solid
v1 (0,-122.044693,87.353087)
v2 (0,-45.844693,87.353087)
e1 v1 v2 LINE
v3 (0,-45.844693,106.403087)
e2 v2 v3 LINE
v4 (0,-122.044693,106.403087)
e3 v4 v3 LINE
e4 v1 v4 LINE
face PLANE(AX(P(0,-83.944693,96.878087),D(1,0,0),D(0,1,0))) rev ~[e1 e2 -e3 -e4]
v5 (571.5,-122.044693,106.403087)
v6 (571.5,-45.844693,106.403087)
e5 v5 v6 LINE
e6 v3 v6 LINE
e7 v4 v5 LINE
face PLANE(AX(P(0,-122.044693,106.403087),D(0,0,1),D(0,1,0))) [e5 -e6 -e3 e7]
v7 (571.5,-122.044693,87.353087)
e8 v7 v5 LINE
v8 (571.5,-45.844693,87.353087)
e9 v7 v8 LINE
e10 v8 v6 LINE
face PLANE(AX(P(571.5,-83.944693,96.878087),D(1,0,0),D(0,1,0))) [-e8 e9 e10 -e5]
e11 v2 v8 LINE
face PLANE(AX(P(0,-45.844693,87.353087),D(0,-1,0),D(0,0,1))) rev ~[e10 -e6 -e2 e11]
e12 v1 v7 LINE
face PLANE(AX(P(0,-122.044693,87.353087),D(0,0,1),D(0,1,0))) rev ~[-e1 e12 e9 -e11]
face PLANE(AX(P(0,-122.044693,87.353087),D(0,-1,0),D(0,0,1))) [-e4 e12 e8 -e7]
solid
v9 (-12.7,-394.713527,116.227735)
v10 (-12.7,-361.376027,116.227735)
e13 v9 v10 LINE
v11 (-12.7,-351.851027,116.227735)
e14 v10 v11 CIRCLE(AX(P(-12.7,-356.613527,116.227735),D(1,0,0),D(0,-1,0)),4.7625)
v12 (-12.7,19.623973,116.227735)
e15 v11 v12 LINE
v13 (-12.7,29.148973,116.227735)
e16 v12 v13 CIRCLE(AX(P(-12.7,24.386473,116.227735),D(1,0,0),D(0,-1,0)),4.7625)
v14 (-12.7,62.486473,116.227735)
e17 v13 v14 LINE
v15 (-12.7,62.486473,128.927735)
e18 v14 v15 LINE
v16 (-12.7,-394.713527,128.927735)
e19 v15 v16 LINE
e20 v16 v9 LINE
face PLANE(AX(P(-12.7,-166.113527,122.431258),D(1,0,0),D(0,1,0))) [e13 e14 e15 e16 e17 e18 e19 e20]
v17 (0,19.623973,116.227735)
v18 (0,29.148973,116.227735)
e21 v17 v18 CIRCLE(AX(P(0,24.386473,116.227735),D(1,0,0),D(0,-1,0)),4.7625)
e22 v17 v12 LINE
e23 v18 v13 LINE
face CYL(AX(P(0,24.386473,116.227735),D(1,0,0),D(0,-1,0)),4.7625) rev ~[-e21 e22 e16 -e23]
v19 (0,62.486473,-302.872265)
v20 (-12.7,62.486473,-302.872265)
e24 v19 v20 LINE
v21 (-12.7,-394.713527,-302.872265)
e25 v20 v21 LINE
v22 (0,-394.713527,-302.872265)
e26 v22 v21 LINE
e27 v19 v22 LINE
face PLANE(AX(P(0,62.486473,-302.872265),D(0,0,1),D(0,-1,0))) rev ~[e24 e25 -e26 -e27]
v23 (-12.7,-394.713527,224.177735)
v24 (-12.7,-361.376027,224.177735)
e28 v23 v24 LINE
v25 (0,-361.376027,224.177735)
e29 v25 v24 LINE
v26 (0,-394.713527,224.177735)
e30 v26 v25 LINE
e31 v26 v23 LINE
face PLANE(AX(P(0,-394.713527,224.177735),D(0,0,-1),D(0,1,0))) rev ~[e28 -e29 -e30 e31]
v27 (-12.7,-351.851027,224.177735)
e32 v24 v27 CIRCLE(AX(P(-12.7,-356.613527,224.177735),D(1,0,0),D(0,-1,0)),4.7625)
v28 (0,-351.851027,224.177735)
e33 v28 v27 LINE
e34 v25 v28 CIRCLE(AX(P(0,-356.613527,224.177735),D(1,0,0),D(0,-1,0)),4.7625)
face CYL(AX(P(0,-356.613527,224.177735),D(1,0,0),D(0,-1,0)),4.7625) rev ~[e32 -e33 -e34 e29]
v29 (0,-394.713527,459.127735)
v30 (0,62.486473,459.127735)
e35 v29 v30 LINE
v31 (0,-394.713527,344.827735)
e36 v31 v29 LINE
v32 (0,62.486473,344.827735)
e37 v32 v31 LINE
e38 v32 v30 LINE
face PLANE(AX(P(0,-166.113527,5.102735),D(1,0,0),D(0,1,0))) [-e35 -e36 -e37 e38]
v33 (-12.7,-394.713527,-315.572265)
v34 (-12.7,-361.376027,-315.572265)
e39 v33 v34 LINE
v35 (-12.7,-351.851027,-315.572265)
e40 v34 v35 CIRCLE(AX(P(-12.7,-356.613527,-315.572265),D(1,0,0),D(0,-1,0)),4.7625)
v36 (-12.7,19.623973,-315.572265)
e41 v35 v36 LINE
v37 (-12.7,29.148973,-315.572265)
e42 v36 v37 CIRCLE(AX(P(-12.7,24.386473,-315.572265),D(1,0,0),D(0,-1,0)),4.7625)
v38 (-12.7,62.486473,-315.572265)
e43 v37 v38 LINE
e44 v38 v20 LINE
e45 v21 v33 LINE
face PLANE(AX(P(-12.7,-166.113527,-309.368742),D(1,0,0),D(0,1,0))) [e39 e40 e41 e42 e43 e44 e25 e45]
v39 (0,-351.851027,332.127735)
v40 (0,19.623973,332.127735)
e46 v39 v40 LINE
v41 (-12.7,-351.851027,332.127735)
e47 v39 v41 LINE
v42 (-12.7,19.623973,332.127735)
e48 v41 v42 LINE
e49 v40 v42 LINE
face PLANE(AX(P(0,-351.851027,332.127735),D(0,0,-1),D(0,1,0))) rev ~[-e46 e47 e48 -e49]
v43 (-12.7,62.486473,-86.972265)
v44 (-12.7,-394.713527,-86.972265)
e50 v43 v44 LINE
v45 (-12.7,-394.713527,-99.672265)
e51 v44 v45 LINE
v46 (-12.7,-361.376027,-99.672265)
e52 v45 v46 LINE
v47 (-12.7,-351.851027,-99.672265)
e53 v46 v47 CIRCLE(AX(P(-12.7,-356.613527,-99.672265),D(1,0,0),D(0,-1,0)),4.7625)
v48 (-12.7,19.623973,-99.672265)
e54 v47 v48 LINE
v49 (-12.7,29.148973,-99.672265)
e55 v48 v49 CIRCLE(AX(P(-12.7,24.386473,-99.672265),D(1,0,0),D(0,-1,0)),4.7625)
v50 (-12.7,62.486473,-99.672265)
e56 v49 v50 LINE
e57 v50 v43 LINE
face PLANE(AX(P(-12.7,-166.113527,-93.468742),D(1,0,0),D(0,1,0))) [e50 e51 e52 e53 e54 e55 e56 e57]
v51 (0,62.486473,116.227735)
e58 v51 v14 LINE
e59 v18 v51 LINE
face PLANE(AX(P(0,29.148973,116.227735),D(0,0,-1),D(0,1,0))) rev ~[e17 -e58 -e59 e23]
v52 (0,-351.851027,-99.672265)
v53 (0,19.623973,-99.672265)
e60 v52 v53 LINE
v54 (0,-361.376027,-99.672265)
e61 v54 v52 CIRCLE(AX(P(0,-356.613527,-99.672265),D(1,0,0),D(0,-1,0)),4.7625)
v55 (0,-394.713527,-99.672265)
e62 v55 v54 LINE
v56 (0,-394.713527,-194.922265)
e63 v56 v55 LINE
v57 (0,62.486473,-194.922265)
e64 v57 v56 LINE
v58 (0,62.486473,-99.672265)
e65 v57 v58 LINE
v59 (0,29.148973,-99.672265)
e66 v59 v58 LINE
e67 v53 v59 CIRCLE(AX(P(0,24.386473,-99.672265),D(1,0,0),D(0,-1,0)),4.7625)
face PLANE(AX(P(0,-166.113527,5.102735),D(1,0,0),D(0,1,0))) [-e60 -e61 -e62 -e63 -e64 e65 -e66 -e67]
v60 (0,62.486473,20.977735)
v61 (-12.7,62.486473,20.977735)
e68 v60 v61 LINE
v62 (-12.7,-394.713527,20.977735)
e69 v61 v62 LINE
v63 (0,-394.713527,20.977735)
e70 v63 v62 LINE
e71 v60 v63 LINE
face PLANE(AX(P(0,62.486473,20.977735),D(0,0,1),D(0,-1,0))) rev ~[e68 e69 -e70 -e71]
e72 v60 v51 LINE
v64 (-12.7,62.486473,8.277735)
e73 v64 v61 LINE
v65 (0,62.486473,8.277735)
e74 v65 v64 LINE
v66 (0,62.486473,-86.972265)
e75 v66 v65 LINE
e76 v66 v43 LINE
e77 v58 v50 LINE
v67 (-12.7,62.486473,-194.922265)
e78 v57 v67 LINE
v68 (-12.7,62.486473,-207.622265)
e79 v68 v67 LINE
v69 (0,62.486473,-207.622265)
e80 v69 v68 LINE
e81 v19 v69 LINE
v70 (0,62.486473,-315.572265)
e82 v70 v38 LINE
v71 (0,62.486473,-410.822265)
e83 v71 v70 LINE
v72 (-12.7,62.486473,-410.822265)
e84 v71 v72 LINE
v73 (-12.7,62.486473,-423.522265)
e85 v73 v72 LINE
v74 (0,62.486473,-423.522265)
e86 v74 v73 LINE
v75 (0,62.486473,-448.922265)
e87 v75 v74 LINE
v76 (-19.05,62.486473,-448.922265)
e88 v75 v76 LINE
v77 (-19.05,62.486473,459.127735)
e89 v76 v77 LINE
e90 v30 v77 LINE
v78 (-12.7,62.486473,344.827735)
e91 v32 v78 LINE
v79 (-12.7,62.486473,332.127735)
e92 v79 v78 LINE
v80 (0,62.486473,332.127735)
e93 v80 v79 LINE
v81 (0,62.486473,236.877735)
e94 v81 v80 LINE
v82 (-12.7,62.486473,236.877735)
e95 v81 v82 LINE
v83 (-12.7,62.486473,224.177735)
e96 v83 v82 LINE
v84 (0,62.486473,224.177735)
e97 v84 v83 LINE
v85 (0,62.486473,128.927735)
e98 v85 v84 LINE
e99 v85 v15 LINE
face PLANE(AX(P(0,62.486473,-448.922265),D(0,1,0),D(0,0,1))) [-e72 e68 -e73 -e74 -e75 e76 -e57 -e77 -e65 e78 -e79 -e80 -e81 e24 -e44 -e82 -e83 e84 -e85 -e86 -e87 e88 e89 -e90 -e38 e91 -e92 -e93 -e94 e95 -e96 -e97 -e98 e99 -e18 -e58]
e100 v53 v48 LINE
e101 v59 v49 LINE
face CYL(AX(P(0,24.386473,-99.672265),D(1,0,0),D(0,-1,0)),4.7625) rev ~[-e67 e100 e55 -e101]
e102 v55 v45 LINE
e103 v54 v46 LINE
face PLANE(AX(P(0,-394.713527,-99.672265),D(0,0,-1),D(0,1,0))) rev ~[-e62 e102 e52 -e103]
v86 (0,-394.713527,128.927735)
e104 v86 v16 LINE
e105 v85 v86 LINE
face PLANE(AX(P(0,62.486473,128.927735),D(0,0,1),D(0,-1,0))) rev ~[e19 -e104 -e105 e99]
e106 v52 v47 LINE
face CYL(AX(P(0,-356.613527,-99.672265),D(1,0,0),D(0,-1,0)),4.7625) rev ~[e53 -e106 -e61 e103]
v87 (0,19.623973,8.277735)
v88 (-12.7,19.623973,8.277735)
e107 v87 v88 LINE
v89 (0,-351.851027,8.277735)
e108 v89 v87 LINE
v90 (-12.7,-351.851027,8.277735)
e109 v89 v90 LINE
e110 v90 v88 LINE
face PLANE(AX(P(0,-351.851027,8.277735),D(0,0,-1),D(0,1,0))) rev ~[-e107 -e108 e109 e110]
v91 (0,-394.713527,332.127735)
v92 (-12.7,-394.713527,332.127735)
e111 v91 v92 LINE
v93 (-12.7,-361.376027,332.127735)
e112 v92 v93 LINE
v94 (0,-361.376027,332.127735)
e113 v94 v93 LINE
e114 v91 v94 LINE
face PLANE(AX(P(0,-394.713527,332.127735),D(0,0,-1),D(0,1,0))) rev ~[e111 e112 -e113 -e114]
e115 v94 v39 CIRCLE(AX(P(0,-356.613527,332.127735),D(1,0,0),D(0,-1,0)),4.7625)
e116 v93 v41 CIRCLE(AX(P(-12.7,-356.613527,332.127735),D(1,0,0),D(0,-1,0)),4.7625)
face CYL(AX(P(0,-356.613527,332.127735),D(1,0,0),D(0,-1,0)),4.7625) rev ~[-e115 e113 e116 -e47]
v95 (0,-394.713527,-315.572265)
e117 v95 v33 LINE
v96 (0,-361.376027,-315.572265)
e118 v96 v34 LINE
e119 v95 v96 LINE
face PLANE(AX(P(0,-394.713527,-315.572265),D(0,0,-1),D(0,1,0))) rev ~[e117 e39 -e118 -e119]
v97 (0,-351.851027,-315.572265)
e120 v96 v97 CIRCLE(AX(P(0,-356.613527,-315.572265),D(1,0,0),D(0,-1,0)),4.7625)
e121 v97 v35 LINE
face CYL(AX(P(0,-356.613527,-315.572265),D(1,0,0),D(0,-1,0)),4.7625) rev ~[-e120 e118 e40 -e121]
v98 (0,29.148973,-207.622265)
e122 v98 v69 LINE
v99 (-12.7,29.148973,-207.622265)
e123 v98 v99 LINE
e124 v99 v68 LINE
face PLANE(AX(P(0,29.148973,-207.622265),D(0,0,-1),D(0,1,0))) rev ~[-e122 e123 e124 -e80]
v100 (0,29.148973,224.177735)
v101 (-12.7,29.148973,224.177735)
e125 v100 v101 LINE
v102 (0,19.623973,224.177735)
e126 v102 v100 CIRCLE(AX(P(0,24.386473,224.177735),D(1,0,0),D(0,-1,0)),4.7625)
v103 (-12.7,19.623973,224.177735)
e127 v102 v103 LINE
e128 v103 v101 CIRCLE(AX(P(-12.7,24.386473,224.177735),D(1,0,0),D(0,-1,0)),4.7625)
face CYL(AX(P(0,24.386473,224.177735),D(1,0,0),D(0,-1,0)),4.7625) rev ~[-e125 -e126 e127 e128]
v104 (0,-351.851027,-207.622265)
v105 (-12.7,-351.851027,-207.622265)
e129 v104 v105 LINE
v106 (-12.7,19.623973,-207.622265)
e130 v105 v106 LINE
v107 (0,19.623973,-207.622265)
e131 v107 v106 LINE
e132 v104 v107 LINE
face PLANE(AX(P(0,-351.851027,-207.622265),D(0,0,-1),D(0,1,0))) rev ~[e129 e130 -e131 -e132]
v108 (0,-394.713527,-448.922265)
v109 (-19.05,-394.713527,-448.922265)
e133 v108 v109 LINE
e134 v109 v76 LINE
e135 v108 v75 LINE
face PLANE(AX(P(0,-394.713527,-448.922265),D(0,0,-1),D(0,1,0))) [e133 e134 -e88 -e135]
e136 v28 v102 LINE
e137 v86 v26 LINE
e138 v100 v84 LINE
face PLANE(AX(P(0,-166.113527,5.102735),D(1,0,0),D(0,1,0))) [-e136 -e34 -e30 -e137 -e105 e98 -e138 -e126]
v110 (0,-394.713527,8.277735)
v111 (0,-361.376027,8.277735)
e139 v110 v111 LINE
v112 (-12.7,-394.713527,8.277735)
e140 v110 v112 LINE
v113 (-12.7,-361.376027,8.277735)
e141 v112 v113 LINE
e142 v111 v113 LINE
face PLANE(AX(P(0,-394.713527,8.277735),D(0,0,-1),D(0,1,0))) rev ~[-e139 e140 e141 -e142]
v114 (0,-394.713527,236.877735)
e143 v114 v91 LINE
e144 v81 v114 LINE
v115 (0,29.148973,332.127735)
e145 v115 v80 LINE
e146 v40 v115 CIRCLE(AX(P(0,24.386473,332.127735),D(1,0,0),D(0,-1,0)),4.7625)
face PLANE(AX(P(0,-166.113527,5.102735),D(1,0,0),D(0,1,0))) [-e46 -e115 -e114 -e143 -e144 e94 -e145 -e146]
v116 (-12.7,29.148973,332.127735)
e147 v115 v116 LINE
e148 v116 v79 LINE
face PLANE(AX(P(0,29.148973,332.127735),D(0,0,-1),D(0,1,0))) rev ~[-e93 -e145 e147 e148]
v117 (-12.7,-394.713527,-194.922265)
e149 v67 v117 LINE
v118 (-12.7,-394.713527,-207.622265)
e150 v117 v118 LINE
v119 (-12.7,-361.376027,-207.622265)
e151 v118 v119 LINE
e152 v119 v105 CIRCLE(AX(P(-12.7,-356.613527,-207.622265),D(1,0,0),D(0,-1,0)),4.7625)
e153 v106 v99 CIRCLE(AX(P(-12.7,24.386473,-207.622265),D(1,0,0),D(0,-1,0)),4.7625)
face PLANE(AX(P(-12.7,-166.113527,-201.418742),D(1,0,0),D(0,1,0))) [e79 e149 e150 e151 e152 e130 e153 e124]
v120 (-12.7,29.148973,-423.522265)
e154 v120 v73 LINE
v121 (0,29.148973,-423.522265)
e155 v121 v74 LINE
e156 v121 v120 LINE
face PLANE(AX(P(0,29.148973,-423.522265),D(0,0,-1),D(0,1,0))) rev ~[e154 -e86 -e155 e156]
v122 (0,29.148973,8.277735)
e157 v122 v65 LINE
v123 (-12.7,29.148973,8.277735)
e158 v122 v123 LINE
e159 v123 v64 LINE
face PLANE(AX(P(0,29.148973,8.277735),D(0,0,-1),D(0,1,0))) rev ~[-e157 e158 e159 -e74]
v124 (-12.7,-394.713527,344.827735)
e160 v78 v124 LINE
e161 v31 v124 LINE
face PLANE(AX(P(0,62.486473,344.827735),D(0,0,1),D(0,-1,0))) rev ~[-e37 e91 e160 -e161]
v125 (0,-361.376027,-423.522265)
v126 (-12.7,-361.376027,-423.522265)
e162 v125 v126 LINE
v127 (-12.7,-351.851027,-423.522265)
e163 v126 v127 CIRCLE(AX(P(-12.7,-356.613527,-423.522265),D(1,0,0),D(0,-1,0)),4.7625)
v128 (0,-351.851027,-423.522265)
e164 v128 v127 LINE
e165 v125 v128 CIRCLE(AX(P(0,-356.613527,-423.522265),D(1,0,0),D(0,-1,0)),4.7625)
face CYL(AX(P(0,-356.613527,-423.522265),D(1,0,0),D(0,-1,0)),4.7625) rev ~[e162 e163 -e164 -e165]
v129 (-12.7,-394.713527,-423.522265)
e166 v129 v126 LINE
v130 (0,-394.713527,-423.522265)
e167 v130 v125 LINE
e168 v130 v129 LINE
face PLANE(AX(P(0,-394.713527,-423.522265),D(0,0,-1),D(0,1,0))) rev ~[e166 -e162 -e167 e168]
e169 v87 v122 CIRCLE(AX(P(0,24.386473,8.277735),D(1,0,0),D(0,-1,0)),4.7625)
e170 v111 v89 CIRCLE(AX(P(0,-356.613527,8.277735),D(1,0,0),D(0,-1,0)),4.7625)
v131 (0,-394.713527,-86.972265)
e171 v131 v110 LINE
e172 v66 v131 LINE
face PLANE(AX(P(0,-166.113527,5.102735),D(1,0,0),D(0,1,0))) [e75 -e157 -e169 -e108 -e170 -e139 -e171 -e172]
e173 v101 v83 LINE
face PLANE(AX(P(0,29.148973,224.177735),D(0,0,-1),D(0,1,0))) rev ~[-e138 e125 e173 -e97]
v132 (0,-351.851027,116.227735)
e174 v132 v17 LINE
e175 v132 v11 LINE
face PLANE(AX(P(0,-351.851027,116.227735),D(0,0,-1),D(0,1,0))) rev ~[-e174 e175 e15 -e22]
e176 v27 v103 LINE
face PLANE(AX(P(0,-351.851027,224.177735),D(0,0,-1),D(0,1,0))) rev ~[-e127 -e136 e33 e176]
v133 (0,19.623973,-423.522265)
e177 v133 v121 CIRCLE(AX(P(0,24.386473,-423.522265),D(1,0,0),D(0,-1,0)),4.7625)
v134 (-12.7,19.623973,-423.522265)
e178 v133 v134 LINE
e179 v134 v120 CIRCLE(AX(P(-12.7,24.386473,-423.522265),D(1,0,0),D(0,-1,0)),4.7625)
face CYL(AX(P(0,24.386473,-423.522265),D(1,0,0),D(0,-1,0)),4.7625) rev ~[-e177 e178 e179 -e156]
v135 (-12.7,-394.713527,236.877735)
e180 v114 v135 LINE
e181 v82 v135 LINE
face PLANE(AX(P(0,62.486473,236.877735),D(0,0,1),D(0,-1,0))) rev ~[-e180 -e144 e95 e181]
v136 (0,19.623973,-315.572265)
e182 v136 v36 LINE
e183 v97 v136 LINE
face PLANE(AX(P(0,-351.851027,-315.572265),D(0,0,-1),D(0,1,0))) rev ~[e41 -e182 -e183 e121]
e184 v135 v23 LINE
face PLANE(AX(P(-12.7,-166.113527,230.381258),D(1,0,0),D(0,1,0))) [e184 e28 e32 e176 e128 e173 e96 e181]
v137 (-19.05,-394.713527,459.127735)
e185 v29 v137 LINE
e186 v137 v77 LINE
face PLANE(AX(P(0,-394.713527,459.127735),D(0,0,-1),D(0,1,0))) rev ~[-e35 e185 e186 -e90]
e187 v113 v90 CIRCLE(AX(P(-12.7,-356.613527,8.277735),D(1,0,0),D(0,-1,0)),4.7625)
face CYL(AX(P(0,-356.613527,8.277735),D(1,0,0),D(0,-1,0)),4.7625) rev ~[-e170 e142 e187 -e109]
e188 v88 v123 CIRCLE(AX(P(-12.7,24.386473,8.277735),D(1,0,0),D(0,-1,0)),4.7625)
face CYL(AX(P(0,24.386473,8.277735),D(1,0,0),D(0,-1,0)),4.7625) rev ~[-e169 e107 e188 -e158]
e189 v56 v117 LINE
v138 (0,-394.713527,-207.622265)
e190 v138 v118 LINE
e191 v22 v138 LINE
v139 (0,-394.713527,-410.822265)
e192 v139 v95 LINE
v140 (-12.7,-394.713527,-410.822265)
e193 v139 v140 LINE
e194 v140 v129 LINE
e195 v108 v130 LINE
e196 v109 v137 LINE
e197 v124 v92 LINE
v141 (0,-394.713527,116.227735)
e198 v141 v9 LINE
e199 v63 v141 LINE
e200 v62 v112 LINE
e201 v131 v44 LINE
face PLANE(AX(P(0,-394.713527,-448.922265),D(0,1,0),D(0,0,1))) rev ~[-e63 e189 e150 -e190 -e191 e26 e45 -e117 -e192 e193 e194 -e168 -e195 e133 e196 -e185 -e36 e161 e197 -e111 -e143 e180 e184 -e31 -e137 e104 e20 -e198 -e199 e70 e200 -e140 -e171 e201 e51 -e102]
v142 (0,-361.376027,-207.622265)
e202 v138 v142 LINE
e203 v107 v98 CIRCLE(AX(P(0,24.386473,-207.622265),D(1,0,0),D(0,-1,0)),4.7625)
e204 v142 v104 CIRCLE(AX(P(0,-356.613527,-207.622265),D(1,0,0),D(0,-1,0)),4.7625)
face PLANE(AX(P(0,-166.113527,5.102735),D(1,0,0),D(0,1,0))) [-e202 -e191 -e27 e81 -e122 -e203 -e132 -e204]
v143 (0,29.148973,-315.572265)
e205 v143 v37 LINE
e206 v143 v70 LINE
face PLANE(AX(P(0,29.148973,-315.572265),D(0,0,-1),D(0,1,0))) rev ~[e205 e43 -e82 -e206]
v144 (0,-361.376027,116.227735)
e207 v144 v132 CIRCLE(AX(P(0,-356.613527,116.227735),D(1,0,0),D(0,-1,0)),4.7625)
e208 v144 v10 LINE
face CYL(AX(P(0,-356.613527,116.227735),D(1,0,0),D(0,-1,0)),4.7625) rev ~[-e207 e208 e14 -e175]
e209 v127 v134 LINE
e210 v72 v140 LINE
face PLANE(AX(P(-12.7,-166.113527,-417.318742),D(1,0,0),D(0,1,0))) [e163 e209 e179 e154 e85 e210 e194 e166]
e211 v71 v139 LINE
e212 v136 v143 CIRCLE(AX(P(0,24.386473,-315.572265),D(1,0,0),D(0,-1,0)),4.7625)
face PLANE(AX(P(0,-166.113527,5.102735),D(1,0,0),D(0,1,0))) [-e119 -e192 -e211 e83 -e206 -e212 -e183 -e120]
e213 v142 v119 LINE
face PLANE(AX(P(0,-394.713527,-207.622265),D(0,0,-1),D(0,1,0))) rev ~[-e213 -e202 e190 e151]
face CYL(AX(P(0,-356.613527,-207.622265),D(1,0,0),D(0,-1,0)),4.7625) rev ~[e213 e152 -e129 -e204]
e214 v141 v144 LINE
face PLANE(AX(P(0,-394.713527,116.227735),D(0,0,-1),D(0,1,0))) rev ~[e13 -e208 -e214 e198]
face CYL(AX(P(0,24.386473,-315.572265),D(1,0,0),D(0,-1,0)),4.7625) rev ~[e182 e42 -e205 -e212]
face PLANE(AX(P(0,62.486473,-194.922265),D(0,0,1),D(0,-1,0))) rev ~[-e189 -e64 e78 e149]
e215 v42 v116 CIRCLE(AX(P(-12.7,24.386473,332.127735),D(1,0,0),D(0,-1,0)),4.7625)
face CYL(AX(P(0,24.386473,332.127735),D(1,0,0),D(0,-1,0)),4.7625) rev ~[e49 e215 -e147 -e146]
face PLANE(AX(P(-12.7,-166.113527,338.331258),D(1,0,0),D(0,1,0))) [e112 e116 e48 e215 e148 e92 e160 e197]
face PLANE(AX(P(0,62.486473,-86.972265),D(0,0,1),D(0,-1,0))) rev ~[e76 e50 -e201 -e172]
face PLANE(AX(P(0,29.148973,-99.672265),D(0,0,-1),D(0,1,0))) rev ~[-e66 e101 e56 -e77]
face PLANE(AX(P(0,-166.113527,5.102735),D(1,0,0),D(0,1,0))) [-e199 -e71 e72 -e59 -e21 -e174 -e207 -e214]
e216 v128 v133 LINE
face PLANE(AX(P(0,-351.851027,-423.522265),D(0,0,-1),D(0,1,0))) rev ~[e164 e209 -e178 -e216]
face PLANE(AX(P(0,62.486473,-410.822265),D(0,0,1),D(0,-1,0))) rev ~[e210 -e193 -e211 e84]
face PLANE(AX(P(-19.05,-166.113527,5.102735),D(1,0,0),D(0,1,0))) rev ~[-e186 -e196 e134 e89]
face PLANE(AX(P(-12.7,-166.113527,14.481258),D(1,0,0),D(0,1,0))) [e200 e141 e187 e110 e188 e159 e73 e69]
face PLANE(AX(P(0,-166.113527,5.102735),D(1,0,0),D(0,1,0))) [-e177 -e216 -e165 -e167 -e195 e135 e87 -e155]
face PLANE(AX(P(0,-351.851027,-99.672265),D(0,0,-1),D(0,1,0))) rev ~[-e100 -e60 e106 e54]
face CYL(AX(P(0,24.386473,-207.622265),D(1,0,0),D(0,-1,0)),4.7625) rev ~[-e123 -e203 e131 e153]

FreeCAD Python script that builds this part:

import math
import FreeCAD as App
import Part
import Sketcher
Q = App.Units.Quantity


def add_polygon(sketch, points):
    """Adds a closed chain of lines whose ends are joined by coincident constraints."""
    first, n = sketch.GeometryCount, len(points)
    for a, b in zip(points, points[1:] + points[:1]):
        sketch.addGeometry(Part.LineSegment(App.Vector(*a, 0), App.Vector(*b, 0)), False)
    for i in range(n):
        sketch.addConstraint(Sketcher.Constraint("Coincident", first + i, 2, first + (i + 1) % n, 1))

doc = App.newDocument("Part")
params = doc.addObject("Spreadsheet::Sheet", "Params")
for row, (alias, value) in enumerate([
    ("sketch1_width", "18 in"),
    ("sketch1_height", "35.75 in"),
    ("pad1_length", "0.75 in"),
    ("sketch2_width", "18 in"),
    ("sketch2_height", "0.5 in"),
    ("sketch2_radius", "0.1875 in"),
    ("pocket1_length", "0.5 in"),
    ("sketch3_width", "18 in"),
    ("sketch3_height", "0.5 in"),
    ("sketch3_radius", "0.1875 in"),
    ("sketch3_width2", "1.3125 in"),
    ("pocket2_length", "0.5 in"),
    ("sketch4_width", "3 in"),
    ("sketch4_height", "0.75 in"),
    ("pad2_length", "22.5 in"),
], start=1):
    params.set(f"A{row}", alias)
    params.set(f"B{row}", "=" + value)
    params.setAlias(f"B{row}", alias)

body = doc.addObject("PartDesign::Body", "Body")

sketch1 = body.newObject("Sketcher::SketchObject", "Sketch")
sketch1.AttachmentSupport = (doc.getObject("YZ_Plane"), [""])
sketch1.MapMode = "FlatFace"
add_polygon(sketch1, [(-394.713527, 459.127735), (-394.713527, -448.922265), (62.486473, -448.922265), (62.486473, 459.127735)])
sketch1.addConstraint([
    Sketcher.Constraint("Vertical", 0),
    Sketcher.Constraint("Horizontal", 1),
    Sketcher.Constraint("Vertical", 2),
    Sketcher.Constraint("Horizontal", 3),
    Sketcher.Constraint("DistanceX", 1, 1, 1, 2, Q("18 in")),
    Sketcher.Constraint("DistanceY", 0, 2, 0, 1, Q("35.75 in")),
    Sketcher.Constraint("DistanceX", 0, 2, -1, 1, 394.713527),
    Sketcher.Constraint("DistanceY", 0, 2, -1, 1, 448.922265),
])
sketch1.setExpression("Constraints[8]", "Params.sketch1_width")
sketch1.setExpression("Constraints[9]", "Params.sketch1_height")
pad1 = body.newObject("PartDesign::Pad", "Pad")
pad1.Profile = sketch1
pad1.setExpression("Length", "Params.pad1_length")
pad1.Reversed = True

sketch2 = body.newObject("Sketcher::SketchObject", "Sketch001")
sketch2.AttachmentSupport = (doc.getObject("YZ_Plane"), [""])
sketch2.MapMode = "FlatFace"
sketch2.addGeometry([
    Part.LineSegment(App.Vector(-394.713527, -410.822265, 0), App.Vector(-394.713527, -423.522265, 0)),
    Part.LineSegment(App.Vector(-394.713527, -423.522265, 0), App.Vector(-361.376027, -423.522265, 0)),
    Part.ArcOfCircle(Part.Circle(App.Vector(-356.613527, -423.522265, 0), App.Vector(0, 0, 1), 4.7625), math.radians(180), math.radians(360)),
    Part.LineSegment(App.Vector(-351.851027, -423.522265, 0), App.Vector(19.623973, -423.522265, 0)),
    Part.ArcOfCircle(Part.Circle(App.Vector(24.386473, -423.522265, 0), App.Vector(0, 0, 1), 4.7625), math.radians(180), math.radians(360)),
    Part.LineSegment(App.Vector(29.148973, -423.522265, 0), App.Vector(62.486473, -423.522265, 0)),
    Part.LineSegment(App.Vector(62.486473, -423.522265, 0), App.Vector(62.486473, -410.822265, 0)),
    Part.LineSegment(App.Vector(62.486473, -410.822265, 0), App.Vector(-394.713527, -410.822265, 0)),
], False)
sketch2.addConstraint([
    Sketcher.Constraint("Coincident", 0, 2, 1, 1),
    Sketcher.Constraint("Coincident", 1, 2, 2, 1),
    Sketcher.Constraint("Coincident", 2, 2, 3, 1),
    Sketcher.Constraint("Coincident", 3, 2, 4, 1),
    Sketcher.Constraint("Coincident", 4, 2, 5, 1),
    Sketcher.Constraint("Coincident", 5, 2, 6, 1),
    Sketcher.Constraint("Coincident", 6, 2, 7, 1),
    Sketcher.Constraint("Coincident", 7, 2, 0, 1),
    Sketcher.Constraint("Vertical", 0),
    Sketcher.Constraint("Horizontal", 1),
    Sketcher.Constraint("Horizontal", 3),
    Sketcher.Constraint("Horizontal", 5),
    Sketcher.Constraint("Vertical", 6),
    Sketcher.Constraint("Horizontal", 7),
    Sketcher.Constraint("Equal", 2, 4),
    Sketcher.Constraint("Horizontal", 2, 3, 4, 3),
    Sketcher.Constraint("Horizontal", 4, 3, 0, 2),
    Sketcher.Constraint("Horizontal", 1, 2, 2, 2),
    Sketcher.Constraint("Horizontal", 3, 2, 4, 2),
    Sketcher.Constraint("Equal", 1, 5),
    Sketcher.Constraint("DistanceX", 7, 2, 7, 1, Q("18 in")),
    Sketcher.Constraint("DistanceY", 0, 2, 0, 1, Q("0.5 in")),
    Sketcher.Constraint("Radius", 2, Q("0.1875 in")),
    Sketcher.Constraint("DistanceX", 2, 3, 4, 3, Q("15 in")),
    Sketcher.Constraint("DistanceX", 2, 3, -1, 1, 356.613527),
    Sketcher.Constraint("DistanceY", 2, 3, -1, 1, 423.522265),
])
sketch2.setExpression("Constraints[20]", "Params.sketch2_width")
sketch2.setExpression("Constraints[21]", "Params.sketch2_height")
sketch2.setExpression("Constraints[22]", "Params.sketch2_radius")
pocket1 = body.newObject("PartDesign::Pocket", "Pocket")
pocket1.Profile = sketch2
pocket1.setExpression("Length", "Params.pocket1_length")

sketch3 = body.newObject("Sketcher::SketchObject", "Sketch002")
sketch3.AttachmentSupport = (doc.getObject("YZ_Plane"), [""])
sketch3.MapMode = "FlatFace"
sketch3.addGeometry([
    Part.LineSegment(App.Vector(-394.713527, -302.872265, 0), App.Vector(-394.713527, -315.572265, 0)),
    Part.LineSegment(App.Vector(-394.713527, -315.572265, 0), App.Vector(-361.376027, -315.572265, 0)),
    Part.ArcOfCircle(Part.Circle(App.Vector(-356.613527, -315.572265, 0), App.Vector(0, 0, 1), 4.7625), math.radians(180), math.radians(360)),
    Part.LineSegment(App.Vector(-351.851027, -315.572265, 0), App.Vector(19.623973, -315.572265, 0)),
    Part.ArcOfCircle(Part.Circle(App.Vector(24.386473, -315.572265, 0), App.Vector(0, 0, 1), 4.7625), math.radians(180), math.radians(360)),
    Part.LineSegment(App.Vector(29.148973, -315.572265, 0), App.Vector(62.486473, -315.572265, 0)),
    Part.LineSegment(App.Vector(62.486473, -315.572265, 0), App.Vector(62.486473, -302.872265, 0)),
    Part.LineSegment(App.Vector(62.486473, -302.872265, 0), App.Vector(-394.713527, -302.872265, 0)),
    Part.LineSegment(App.Vector(-394.713527, -194.922265, 0), App.Vector(-394.713527, -207.622265, 0)),
    Part.LineSegment(App.Vector(-394.713527, -207.622265, 0), App.Vector(-361.376027, -207.622265, 0)),
    Part.ArcOfCircle(Part.Circle(App.Vector(-356.613527, -207.622265, 0), App.Vector(0, 0, 1), 4.7625), math.radians(180), math.radians(360)),
    Part.LineSegment(App.Vector(-351.851027, -207.622265, 0), App.Vector(19.623973, -207.622265, 0)),
    Part.ArcOfCircle(Part.Circle(App.Vector(24.386473, -207.622265, 0), App.Vector(0, 0, 1), 4.7625), math.radians(180), math.radians(360)),
    Part.LineSegment(App.Vector(29.148973, -207.622265, 0), App.Vector(62.486473, -207.622265, 0)),
    Part.LineSegment(App.Vector(62.486473, -207.622265, 0), App.Vector(62.486473, -194.922265, 0)),
    Part.LineSegment(App.Vector(62.486473, -194.922265, 0), App.Vector(-394.713527, -194.922265, 0)),
    Part.LineSegment(App.Vector(-394.713527, -86.972265, 0), App.Vector(-394.713527, -99.672265, 0)),
    Part.LineSegment(App.Vector(-394.713527, -99.672265, 0), App.Vector(-361.376027, -99.672265, 0)),
    Part.ArcOfCircle(Part.Circle(App.Vector(-356.613527, -99.672265, 0), App.Vector(0, 0, 1), 4.7625), math.radians(180), math.radians(360)),
    Part.LineSegment(App.Vector(-351.851027, -99.672265, 0), App.Vector(19.623973, -99.672265, 0)),
    Part.ArcOfCircle(Part.Circle(App.Vector(24.386473, -99.672265, 0), App.Vector(0, 0, 1), 4.7625), math.radians(180), math.radians(360)),
    Part.LineSegment(App.Vector(29.148973, -99.672265, 0), App.Vector(62.486473, -99.672265, 0)),
    Part.LineSegment(App.Vector(62.486473, -99.672265, 0), App.Vector(62.486473, -86.972265, 0)),
    Part.LineSegment(App.Vector(62.486473, -86.972265, 0), App.Vector(-394.713527, -86.972265, 0)),
    Part.LineSegment(App.Vector(-394.713527, 20.977735, 0), App.Vector(-394.713527, 8.277735, 0)),
    Part.LineSegment(App.Vector(-394.713527, 8.277735, 0), App.Vector(-361.376027, 8.277735, 0)),
    Part.ArcOfCircle(Part.Circle(App.Vector(-356.613527, 8.277735, 0), App.Vector(0, 0, 1), 4.7625), math.radians(180), math.radians(360)),
    Part.LineSegment(App.Vector(-351.851027, 8.277735, 0), App.Vector(19.623973, 8.277735, 0)),
    Part.ArcOfCircle(Part.Circle(App.Vector(24.386473, 8.277735, 0), App.Vector(0, 0, 1), 4.7625), math.radians(180), math.radians(360)),
    Part.LineSegment(App.Vector(29.148973, 8.277735, 0), App.Vector(62.486473, 8.277735, 0)),
    Part.LineSegment(App.Vector(62.486473, 8.277735, 0), App.Vector(62.486473, 20.977735, 0)),
    Part.LineSegment(App.Vector(62.486473, 20.977735, 0), App.Vector(-394.713527, 20.977735, 0)),
    Part.LineSegment(App.Vector(-394.713527, 128.927735, 0), App.Vector(-394.713527, 116.227735, 0)),
    Part.LineSegment(App.Vector(-394.713527, 116.227735, 0), App.Vector(-361.376027, 116.227735, 0)),
    Part.ArcOfCircle(Part.Circle(App.Vector(-356.613527, 116.227735, 0), App.Vector(0, 0, 1), 4.7625), math.radians(180), math.radians(360)),
    Part.LineSegment(App.Vector(-351.851027, 116.227735, 0), App.Vector(19.623973, 116.227735, 0)),
    Part.ArcOfCircle(Part.Circle(App.Vector(24.386473, 116.227735, 0), App.Vector(0, 0, 1), 4.7625), math.radians(180), math.radians(360)),
    Part.LineSegment(App.Vector(29.148973, 116.227735, 0), App.Vector(62.486473, 116.227735, 0)),
    Part.LineSegment(App.Vector(62.486473, 116.227735, 0), App.Vector(62.486473, 128.927735, 0)),
    Part.LineSegment(App.Vector(62.486473, 128.927735, 0), App.Vector(-394.713527, 128.927735, 0)),
    Part.LineSegment(App.Vector(-394.713527, 236.877735, 0), App.Vector(-394.713527, 224.177735, 0)),
    Part.LineSegment(App.Vector(-394.713527, 224.177735, 0), App.Vector(-361.376027, 224.177735, 0)),
    Part.ArcOfCircle(Part.Circle(App.Vector(-356.613527, 224.177735, 0), App.Vector(0, 0, 1), 4.7625), math.radians(180), math.radians(360)),
    Part.LineSegment(App.Vector(-351.851027, 224.177735, 0), App.Vector(19.623973, 224.177735, 0)),
    Part.ArcOfCircle(Part.Circle(App.Vector(24.386473, 224.177735, 0), App.Vector(0, 0, 1), 4.7625), math.radians(180), math.radians(360)),
    Part.LineSegment(App.Vector(29.148973, 224.177735, 0), App.Vector(62.486473, 224.177735, 0)),
    Part.LineSegment(App.Vector(62.486473, 224.177735, 0), App.Vector(62.486473, 236.877735, 0)),
    Part.LineSegment(App.Vector(62.486473, 236.877735, 0), App.Vector(-394.713527, 236.877735, 0)),
    Part.LineSegment(App.Vector(-394.713527, 344.827735, 0), App.Vector(-394.713527, 332.127735, 0)),
    Part.LineSegment(App.Vector(-394.713527, 332.127735, 0), App.Vector(-361.376027, 332.127735, 0)),
    Part.ArcOfCircle(Part.Circle(App.Vector(-356.613527, 332.127735, 0), App.Vector(0, 0, 1), 4.7625), math.radians(180), math.radians(360)),
    Part.LineSegment(App.Vector(-351.851027, 332.127735, 0), App.Vector(19.623973, 332.127735, 0)),
    Part.ArcOfCircle(Part.Circle(App.Vector(24.386473, 332.127735, 0), App.Vector(0, 0, 1), 4.7625), math.radians(180), math.radians(360)),
    Part.LineSegment(App.Vector(29.148973, 332.127735, 0), App.Vector(62.486473, 332.127735, 0)),
    Part.LineSegment(App.Vector(62.486473, 332.127735, 0), App.Vector(62.486473, 344.827735, 0)),
    Part.LineSegment(App.Vector(62.486473, 344.827735, 0), App.Vector(-394.713527, 344.827735, 0)),
], False)
sketch3.addConstraint([
    Sketcher.Constraint("Coincident", 0, 2, 1, 1),
    Sketcher.Constraint("Coincident", 1, 2, 2, 1),
    Sketcher.Constraint("Coincident", 2, 2, 3, 1),
    Sketcher.Constraint("Coincident", 3, 2, 4, 1),
    Sketcher.Constraint("Coincident", 4, 2, 5, 1),
    Sketcher.Constraint("Coincident", 5, 2, 6, 1),
    Sketcher.Constraint("Coincident", 6, 2, 7, 1),
    Sketcher.Constraint("Coincident", 7, 2, 0, 1),
    Sketcher.Constraint("Coincident", 8, 2, 9, 1),
    Sketcher.Constraint("Coincident", 9, 2, 10, 1),
    Sketcher.Constraint("Coincident", 10, 2, 11, 1),
    Sketcher.Constraint("Coincident", 11, 2, 12, 1),
    Sketcher.Constraint("Coincident", 12, 2, 13, 1),
    Sketcher.Constraint("Coincident", 13, 2, 14, 1),
    Sketcher.Constraint("Coincident", 14, 2, 15, 1),
    Sketcher.Constraint("Coincident", 15, 2, 8, 1),
    Sketcher.Constraint("Coincident", 16, 2, 17, 1),
    Sketcher.Constraint("Coincident", 17, 2, 18, 1),
    Sketcher.Constraint("Coincident", 18, 2, 19, 1),
    Sketcher.Constraint("Coincident", 19, 2, 20, 1),
    Sketcher.Constraint("Coincident", 20, 2, 21, 1),
    Sketcher.Constraint("Coincident", 21, 2, 22, 1),
    Sketcher.Constraint("Coincident", 22, 2, 23, 1),
    Sketcher.Constraint("Coincident", 23, 2, 16, 1),
    Sketcher.Constraint("Coincident", 24, 2, 25, 1),
    Sketcher.Constraint("Coincident", 25, 2, 26, 1),
    Sketcher.Constraint("Coincident", 26, 2, 27, 1),
    Sketcher.Constraint("Coincident", 27, 2, 28, 1),
    Sketcher.Constraint("Coincident", 28, 2, 29, 1),
    Sketcher.Constraint("Coincident", 29, 2, 30, 1),
    Sketcher.Constraint("Coincident", 30, 2, 31, 1),
    Sketcher.Constraint("Coincident", 31, 2, 24, 1),
    Sketcher.Constraint("Coincident", 32, 2, 33, 1),
    Sketcher.Constraint("Coincident", 33, 2, 34, 1),
    Sketcher.Constraint("Coincident", 34, 2, 35, 1),
    Sketcher.Constraint("Coincident", 35, 2, 36, 1),
    Sketcher.Constraint("Coincident", 36, 2, 37, 1),
    Sketcher.Constraint("Coincident", 37, 2, 38, 1),
    Sketcher.Constraint("Coincident", 38, 2, 39, 1),
    Sketcher.Constraint("Coincident", 39, 2, 32, 1),
    Sketcher.Constraint("Coincident", 40, 2, 41, 1),
    Sketcher.Constraint("Coincident", 41, 2, 42, 1),
    Sketcher.Constraint("Coincident", 42, 2, 43, 1),
    Sketcher.Constraint("Coincident", 43, 2, 44, 1),
    Sketcher.Constraint("Coincident", 44, 2, 45, 1),
    Sketcher.Constraint("Coincident", 45, 2, 46, 1),
    Sketcher.Constraint("Coincident", 46, 2, 47, 1),
    Sketcher.Constraint("Coincident", 47, 2, 40, 1),
    Sketcher.Constraint("Coincident", 48, 2, 49, 1),
    Sketcher.Constraint("Coincident", 49, 2, 50, 1),
    Sketcher.Constraint("Coincident", 50, 2, 51, 1),
    Sketcher.Constraint("Coincident", 51, 2, 52, 1),
    Sketcher.Constraint("Coincident", 52, 2, 53, 1),
    Sketcher.Constraint("Coincident", 53, 2, 54, 1),
    Sketcher.Constraint("Coincident", 54, 2, 55, 1),
    Sketcher.Constraint("Coincident", 55, 2, 48, 1),
    Sketcher.Constraint("Vertical", 0),
    Sketcher.Constraint("Horizontal", 1),
    Sketcher.Constraint("Horizontal", 3),
    Sketcher.Constraint("Horizontal", 5),
    Sketcher.Constraint("Vertical", 6),
    Sketcher.Constraint("Horizontal", 7),
    Sketcher.Constraint("Vertical", 8),
    Sketcher.Constraint("Horizontal", 9),
    Sketcher.Constraint("Horizontal", 11),
    Sketcher.Constraint("Horizontal", 13),
    Sketcher.Constraint("Vertical", 14),
    Sketcher.Constraint("Horizontal", 15),
    Sketcher.Constraint("Vertical", 16),
    Sketcher.Constraint("Horizontal", 17),
    Sketcher.Constraint("Horizontal", 19),
    Sketcher.Constraint("Horizontal", 21),
    Sketcher.Constraint("Vertical", 22),
    Sketcher.Constraint("Horizontal", 23),
    Sketcher.Constraint("Vertical", 24),
    Sketcher.Constraint("Horizontal", 25),
    Sketcher.Constraint("Horizontal", 27),
    Sketcher.Constraint("Horizontal", 29),
    Sketcher.Constraint("Vertical", 30),
    Sketcher.Constraint("Horizontal", 31),
    Sketcher.Constraint("Vertical", 32),
    Sketcher.Constraint("Horizontal", 33),
    Sketcher.Constraint("Horizontal", 35),
    Sketcher.Constraint("Horizontal", 37),
    Sketcher.Constraint("Vertical", 38),
    Sketcher.Constraint("Horizontal", 39),
    Sketcher.Constraint("Vertical", 40),
    Sketcher.Constraint("Horizontal", 41),
    Sketcher.Constraint("Horizontal", 43),
    Sketcher.Constraint("Horizontal", 45),
    Sketcher.Constraint("Vertical", 46),
    Sketcher.Constraint("Horizontal", 47),
    Sketcher.Constraint("Vertical", 48),
    Sketcher.Constraint("Horizontal", 49),
    Sketcher.Constraint("Horizontal", 51),
    Sketcher.Constraint("Horizontal", 53),
    Sketcher.Constraint("Vertical", 54),
    Sketcher.Constraint("Horizontal", 55),
    Sketcher.Constraint("Equal", 2, 4),
    Sketcher.Constraint("Equal", 4, 10),
    Sketcher.Constraint("Equal", 10, 12),
    Sketcher.Constraint("Equal", 12, 18),
    Sketcher.Constraint("Equal", 18, 20),
    Sketcher.Constraint("Equal", 20, 26),
    Sketcher.Constraint("Equal", 26, 28),
    Sketcher.Constraint("Equal", 28, 34),
    Sketcher.Constraint("Equal", 34, 36),
    Sketcher.Constraint("Equal", 36, 42),
    Sketcher.Constraint("Equal", 42, 44),
    Sketcher.Constraint("Equal", 44, 50),
    Sketcher.Constraint("Equal", 50, 52),
    Sketcher.Constraint("Horizontal", 2, 3, 4, 3),
    Sketcher.Constraint("Horizontal", 10, 3, 12, 3),
    Sketcher.Constraint("Horizontal", 18, 3, 20, 3),
    Sketcher.Constraint("Horizontal", 26, 3, 28, 3),
    Sketcher.Constraint("Horizontal", 34, 3, 36, 3),
    Sketcher.Constraint("Horizontal", 42, 3, 44, 3),
    Sketcher.Constraint("Horizontal", 50, 3, 52, 3),
    Sketcher.Constraint("Horizontal", 4, 3, 0, 2),
    Sketcher.Constraint("Horizontal", 1, 2, 2, 2),
    Sketcher.Constraint("Horizontal", 3, 2, 4, 2),
    Sketcher.Constraint("Horizontal", 12, 3, 8, 2),
    Sketcher.Constraint("Horizontal", 9, 2, 10, 2),
    Sketcher.Constraint("Horizontal", 11, 2, 12, 2),
    Sketcher.Constraint("Horizontal", 20, 3, 16, 2),
    Sketcher.Constraint("Horizontal", 17, 2, 18, 2),
    Sketcher.Constraint("Horizontal", 19, 2, 20, 2),
    Sketcher.Constraint("Horizontal", 28, 3, 24, 2),
    Sketcher.Constraint("Horizontal", 25, 2, 26, 2),
    Sketcher.Constraint("Horizontal", 27, 2, 28, 2),
    Sketcher.Constraint("Horizontal", 36, 3, 32, 2),
    Sketcher.Constraint("Horizontal", 33, 2, 34, 2),
    Sketcher.Constraint("Horizontal", 35, 2, 36, 2),
    Sketcher.Constraint("Horizontal", 44, 3, 40, 2),
    Sketcher.Constraint("Horizontal", 41, 2, 42, 2),
    Sketcher.Constraint("Horizontal", 43, 2, 44, 2),
    Sketcher.Constraint("Horizontal", 52, 3, 48, 2),
    Sketcher.Constraint("Horizontal", 49, 2, 50, 2),
    Sketcher.Constraint("Horizontal", 51, 2, 52, 2),
    Sketcher.Constraint("Vertical", 2, 3, 10, 3),
    Sketcher.Constraint("Vertical", 4, 3, 12, 3),
    Sketcher.Constraint("Vertical", 10, 3, 18, 3),
    Sketcher.Constraint("Vertical", 12, 3, 20, 3),
    Sketcher.Constraint("Vertical", 18, 3, 26, 3),
    Sketcher.Constraint("Vertical", 20, 3, 28, 3),
    Sketcher.Constraint("Vertical", 26, 3, 34, 3),
    Sketcher.Constraint("Vertical", 28, 3, 36, 3),
    Sketcher.Constraint("Vertical", 34, 3, 42, 3),
    Sketcher.Constraint("Vertical", 36, 3, 44, 3),
    Sketcher.Constraint("Vertical", 42, 3, 50, 3),
    Sketcher.Constraint("Vertical", 44, 3, 52, 3),
    Sketcher.Constraint("Vertical", 7, 2, 8, 2),
    Sketcher.Constraint("Vertical", 6, 2, 13, 2),
    Sketcher.Constraint("Vertical", 15, 2, 16, 2),
    Sketcher.Constraint("Vertical", 14, 2, 21, 2),
    Sketcher.Constraint("Vertical", 23, 2, 24, 2),
    Sketcher.Constraint("Vertical", 22, 2, 29, 2),
    Sketcher.Constraint("Vertical", 31, 2, 32, 2),
    Sketcher.Constraint("Vertical", 30, 2, 37, 2),
    Sketcher.Constraint("Vertical", 39, 2, 40, 2),
    Sketcher.Constraint("Vertical", 38, 2, 45, 2),
    Sketcher.Constraint("Vertical", 47, 2, 48, 2),
    Sketcher.Constraint("Vertical", 46, 2, 53, 2),
    Sketcher.Constraint("Equal", 1, 5),
    Sketcher.Constraint("Equal", 6, 8),
    Sketcher.Constraint("Equal", 14, 16),
    Sketcher.Constraint("Equal", 22, 24),
    Sketcher.Constraint("Equal", 30, 32),
    Sketcher.Constraint("Equal", 38, 40),
    Sketcher.Constraint("Equal", 46, 48),
    Sketcher.Constraint("DistanceX", 7, 2, 7, 1, Q("18 in")),
    Sketcher.Constraint("DistanceY", 0, 2, 0, 1, Q("0.5 in")),
    Sketcher.Constraint("Radius", 2, Q("0.1875 in")),
    Sketcher.Constraint("DistanceX", 1, 1, 1, 2, Q("1.3125 in")),
    Sketcher.Constraint("DistanceX", 2, 3, -1, 1, 356.613527),
    Sketcher.Constraint("DistanceY", 2, 3, -1, 1, 315.572265),
    Sketcher.Constraint("DistanceY", 10, 3, -1, 1, 207.622265),
    Sketcher.Constraint("DistanceY", 18, 3, -1, 1, 99.672265),
    Sketcher.Constraint("DistanceY", -1, 1, 26, 3, 8.277735),
    Sketcher.Constraint("DistanceY", -1, 1, 34, 3, 116.227735),
    Sketcher.Constraint("DistanceY", -1, 1, 42, 3, 224.177735),
    Sketcher.Constraint("DistanceY", -1, 1, 50, 3, 332.127735),
])
sketch3.setExpression("Constraints[170]", "Params.sketch3_width")
sketch3.setExpression("Constraints[171]", "Params.sketch3_height")
sketch3.setExpression("Constraints[172]", "Params.sketch3_radius")
sketch3.setExpression("Constraints[173]", "Params.sketch3_width2")
pocket2 = body.newObject("PartDesign::Pocket", "Pocket001")
pocket2.Profile = sketch3
pocket2.setExpression("Length", "Params.pocket2_length")
body2 = doc.addObject("PartDesign::Body", "Body001")

sketch4 = body2.newObject("Sketcher::SketchObject", "Sketch003")
sketch4.AttachmentSupport = (doc.getObject("YZ_Plane001"), [""])
sketch4.MapMode = "FlatFace"
add_polygon(sketch4, [(-122.044693, 106.403087), (-122.044693, 87.353087), (-45.844693, 87.353087), (-45.844693, 106.403087)])
sketch4.addConstraint([
    Sketcher.Constraint("Vertical", 0),
    Sketcher.Constraint("Horizontal", 1),
    Sketcher.Constraint("Vertical", 2),
    Sketcher.Constraint("Horizontal", 3),
    Sketcher.Constraint("DistanceX", 1, 1, 1, 2, Q("3 in")),
    Sketcher.Constraint("DistanceY", 0, 2, 0, 1, Q("0.75 in")),
    Sketcher.Constraint("DistanceX", 0, 2, -1, 1, 122.044693),
    Sketcher.Constraint("DistanceY", -1, 1, 0, 2, 87.353087),
])
sketch4.setExpression("Constraints[8]", "Params.sketch4_width")
sketch4.setExpression("Constraints[9]", "Params.sketch4_height")
pad2 = body2.newObject("PartDesign::Pad", "Pad001")
pad2.Profile = sketch4
pad2.setExpression("Length", "Params.pad2_length")

doc.recompute()
